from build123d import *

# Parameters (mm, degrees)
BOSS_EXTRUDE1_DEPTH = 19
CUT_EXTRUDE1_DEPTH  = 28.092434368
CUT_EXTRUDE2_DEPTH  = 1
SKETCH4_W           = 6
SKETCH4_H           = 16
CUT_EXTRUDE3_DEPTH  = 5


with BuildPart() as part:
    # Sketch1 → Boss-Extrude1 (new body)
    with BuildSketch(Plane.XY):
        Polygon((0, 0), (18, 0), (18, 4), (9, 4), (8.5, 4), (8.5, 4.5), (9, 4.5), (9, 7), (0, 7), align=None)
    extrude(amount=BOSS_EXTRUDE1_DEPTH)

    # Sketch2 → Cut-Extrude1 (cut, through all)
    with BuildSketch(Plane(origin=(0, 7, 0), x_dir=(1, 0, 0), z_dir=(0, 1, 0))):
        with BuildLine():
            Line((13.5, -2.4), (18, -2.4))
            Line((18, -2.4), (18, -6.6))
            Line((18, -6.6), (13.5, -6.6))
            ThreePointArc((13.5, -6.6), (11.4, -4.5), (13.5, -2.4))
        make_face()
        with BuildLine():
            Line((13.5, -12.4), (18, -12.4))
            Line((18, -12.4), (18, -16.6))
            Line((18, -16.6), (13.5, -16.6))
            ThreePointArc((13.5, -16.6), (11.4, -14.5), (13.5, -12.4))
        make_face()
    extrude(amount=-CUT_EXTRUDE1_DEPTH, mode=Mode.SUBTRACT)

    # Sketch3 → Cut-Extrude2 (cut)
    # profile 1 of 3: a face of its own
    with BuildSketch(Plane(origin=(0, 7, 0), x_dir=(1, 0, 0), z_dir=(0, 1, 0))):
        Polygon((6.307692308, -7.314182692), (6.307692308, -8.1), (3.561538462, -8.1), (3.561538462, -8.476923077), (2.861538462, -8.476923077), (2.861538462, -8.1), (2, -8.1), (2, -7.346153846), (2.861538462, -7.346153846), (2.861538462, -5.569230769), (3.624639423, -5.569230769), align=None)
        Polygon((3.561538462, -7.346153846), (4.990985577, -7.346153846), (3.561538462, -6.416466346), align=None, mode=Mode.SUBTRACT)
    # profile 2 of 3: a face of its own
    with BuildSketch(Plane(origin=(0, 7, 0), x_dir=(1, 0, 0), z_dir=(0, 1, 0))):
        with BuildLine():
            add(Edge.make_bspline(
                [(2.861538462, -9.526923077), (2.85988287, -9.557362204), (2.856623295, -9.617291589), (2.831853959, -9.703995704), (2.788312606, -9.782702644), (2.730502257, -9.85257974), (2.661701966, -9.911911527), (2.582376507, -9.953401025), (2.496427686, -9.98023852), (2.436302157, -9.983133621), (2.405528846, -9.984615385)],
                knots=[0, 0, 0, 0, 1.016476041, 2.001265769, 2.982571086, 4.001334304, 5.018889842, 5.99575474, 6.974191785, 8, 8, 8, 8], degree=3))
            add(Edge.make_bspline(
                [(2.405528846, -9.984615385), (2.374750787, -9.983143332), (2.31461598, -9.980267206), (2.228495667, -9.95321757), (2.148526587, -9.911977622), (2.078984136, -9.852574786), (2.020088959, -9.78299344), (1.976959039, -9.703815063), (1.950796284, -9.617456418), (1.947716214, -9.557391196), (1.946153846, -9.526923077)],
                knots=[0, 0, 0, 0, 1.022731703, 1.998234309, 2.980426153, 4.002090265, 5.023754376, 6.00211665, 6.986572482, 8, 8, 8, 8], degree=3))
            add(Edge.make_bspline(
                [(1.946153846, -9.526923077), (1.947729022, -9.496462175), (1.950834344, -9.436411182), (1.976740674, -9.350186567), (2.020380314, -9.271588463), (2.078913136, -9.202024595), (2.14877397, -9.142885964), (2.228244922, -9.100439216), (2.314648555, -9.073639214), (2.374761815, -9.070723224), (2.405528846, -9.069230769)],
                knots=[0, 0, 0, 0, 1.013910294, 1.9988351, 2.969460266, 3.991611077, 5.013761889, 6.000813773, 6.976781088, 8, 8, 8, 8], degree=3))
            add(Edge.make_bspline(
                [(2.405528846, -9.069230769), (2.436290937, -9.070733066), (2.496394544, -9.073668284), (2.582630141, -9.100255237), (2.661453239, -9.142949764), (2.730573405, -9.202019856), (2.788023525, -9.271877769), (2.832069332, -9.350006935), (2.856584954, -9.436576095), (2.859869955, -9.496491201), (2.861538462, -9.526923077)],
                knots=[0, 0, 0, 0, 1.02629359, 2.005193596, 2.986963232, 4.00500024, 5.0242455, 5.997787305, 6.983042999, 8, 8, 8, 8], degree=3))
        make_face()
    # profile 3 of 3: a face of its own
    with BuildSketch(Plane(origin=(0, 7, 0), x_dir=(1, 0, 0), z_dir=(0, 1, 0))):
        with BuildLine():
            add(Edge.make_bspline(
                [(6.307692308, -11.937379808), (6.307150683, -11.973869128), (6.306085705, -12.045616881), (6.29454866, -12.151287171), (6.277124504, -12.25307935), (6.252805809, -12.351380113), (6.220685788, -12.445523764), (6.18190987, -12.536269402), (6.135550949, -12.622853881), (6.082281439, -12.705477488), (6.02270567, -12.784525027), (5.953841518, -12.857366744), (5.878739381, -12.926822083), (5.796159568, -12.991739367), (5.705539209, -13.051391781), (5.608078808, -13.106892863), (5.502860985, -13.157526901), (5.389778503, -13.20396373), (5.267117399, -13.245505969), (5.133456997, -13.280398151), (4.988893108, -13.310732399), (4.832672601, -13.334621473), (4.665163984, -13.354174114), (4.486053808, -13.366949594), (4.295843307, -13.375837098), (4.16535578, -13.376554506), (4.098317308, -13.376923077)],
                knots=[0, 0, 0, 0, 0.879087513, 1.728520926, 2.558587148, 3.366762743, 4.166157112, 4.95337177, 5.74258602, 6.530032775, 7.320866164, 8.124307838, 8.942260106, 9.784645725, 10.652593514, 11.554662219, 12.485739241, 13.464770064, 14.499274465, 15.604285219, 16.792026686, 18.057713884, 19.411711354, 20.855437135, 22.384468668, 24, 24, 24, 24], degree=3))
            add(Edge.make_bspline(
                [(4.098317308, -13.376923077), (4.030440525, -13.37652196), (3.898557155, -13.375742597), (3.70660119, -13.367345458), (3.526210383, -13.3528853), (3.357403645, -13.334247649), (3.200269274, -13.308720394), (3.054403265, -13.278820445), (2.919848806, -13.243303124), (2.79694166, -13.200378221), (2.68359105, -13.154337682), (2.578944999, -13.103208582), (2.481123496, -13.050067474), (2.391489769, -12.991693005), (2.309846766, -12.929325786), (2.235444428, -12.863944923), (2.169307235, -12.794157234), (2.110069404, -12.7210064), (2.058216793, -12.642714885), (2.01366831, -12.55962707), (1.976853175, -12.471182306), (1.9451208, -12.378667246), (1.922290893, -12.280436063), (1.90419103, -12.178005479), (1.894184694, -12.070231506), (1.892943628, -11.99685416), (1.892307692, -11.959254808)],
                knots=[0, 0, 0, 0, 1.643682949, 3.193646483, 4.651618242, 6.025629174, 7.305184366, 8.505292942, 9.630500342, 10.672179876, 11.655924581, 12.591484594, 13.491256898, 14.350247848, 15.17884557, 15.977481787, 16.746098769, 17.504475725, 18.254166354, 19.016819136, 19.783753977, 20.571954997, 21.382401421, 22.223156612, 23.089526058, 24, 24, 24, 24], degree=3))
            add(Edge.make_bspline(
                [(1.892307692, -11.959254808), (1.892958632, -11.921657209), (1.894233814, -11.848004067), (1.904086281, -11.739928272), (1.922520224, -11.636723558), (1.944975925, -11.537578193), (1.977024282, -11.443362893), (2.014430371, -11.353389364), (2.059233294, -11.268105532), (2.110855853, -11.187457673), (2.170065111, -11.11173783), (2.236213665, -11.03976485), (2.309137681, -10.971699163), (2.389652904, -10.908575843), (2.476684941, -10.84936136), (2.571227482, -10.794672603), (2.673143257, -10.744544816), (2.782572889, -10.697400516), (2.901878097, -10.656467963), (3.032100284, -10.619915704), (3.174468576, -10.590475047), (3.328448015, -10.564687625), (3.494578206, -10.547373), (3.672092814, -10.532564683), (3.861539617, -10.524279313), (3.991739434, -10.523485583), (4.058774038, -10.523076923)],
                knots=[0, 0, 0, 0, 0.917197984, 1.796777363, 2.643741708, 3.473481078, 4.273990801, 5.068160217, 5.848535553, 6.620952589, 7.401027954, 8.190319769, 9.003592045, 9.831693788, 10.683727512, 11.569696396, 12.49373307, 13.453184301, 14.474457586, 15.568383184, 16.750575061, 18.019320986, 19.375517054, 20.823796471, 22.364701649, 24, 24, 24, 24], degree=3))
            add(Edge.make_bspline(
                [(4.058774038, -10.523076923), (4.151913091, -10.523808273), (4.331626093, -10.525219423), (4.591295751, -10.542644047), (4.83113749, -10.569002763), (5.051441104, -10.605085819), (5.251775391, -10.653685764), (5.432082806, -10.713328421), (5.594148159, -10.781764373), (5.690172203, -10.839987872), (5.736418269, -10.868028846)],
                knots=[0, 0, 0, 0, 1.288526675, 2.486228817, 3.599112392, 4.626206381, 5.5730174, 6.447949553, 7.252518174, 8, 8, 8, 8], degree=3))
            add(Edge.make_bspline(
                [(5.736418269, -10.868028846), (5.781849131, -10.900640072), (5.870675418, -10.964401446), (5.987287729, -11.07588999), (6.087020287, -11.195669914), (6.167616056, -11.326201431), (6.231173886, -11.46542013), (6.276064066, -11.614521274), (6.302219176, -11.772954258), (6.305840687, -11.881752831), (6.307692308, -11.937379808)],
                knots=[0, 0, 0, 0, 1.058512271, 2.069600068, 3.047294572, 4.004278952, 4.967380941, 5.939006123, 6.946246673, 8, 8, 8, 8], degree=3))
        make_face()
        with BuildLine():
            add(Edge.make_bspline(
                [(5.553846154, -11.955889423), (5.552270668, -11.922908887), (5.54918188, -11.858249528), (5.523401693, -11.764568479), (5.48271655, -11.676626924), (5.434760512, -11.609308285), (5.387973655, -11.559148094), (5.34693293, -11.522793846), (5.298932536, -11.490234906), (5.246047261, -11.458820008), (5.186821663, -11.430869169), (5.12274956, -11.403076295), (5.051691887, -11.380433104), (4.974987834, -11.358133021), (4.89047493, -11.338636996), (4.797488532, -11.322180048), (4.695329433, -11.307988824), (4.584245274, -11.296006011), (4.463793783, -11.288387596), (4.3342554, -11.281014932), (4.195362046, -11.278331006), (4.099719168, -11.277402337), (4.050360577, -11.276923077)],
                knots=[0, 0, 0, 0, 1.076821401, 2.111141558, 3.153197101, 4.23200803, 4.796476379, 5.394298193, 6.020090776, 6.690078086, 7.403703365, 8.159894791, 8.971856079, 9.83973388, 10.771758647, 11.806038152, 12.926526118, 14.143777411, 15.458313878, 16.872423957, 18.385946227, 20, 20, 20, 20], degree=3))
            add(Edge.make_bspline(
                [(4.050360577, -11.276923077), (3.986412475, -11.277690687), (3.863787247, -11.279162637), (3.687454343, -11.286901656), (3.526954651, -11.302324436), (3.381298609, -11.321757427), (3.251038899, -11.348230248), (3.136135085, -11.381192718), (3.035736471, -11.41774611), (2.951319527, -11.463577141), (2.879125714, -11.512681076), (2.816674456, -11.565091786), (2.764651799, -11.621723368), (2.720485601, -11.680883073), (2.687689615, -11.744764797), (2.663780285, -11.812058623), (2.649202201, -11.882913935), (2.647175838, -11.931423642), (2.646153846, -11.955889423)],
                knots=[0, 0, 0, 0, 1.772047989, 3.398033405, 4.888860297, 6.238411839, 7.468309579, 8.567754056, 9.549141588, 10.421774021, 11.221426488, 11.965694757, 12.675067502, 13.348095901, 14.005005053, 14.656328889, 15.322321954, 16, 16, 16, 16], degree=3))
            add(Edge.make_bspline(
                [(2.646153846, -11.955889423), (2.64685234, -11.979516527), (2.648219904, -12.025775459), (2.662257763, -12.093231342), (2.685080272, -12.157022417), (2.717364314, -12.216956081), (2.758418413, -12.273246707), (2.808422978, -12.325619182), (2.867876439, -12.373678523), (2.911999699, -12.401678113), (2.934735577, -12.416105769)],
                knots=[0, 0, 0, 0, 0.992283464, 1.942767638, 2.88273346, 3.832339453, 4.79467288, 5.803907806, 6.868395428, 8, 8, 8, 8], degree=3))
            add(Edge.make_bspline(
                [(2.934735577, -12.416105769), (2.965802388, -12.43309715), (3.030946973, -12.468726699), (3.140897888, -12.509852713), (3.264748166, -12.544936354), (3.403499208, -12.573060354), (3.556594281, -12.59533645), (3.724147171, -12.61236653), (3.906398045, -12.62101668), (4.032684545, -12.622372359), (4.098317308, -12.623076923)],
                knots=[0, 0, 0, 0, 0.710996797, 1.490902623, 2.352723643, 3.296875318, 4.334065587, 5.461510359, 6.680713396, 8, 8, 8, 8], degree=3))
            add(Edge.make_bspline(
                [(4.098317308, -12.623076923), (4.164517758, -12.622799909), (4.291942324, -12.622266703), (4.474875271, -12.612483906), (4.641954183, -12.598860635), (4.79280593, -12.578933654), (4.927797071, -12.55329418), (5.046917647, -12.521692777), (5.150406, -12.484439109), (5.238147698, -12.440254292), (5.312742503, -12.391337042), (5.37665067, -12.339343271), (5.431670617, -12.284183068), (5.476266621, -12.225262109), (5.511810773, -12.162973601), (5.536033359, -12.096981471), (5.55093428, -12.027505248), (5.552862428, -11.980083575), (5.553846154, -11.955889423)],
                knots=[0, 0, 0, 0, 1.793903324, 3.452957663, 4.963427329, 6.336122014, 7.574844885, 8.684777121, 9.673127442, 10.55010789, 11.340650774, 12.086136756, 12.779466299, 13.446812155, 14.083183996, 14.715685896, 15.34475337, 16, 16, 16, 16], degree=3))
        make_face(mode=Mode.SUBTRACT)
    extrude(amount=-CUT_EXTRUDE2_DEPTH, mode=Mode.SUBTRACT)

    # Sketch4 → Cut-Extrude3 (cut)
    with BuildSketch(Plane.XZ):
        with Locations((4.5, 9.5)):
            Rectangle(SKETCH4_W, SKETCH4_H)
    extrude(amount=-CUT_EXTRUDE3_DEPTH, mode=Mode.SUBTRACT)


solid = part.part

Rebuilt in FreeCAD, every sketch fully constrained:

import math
import FreeCAD as App
import Part
import Sketcher

V = App.Vector


def add_polygon(sketch, points):
    """Adds a closed chain of lines whose ends are joined by coincident constraints."""
    first, n = sketch.GeometryCount, len(points)
    for a, b in zip(points, points[1:] + points[:1]):
        sketch.addGeometry(Part.LineSegment(App.Vector(*a, 0), App.Vector(*b, 0)), False)
    for i in range(n):
        sketch.addConstraint(Sketcher.Constraint("Coincident", first + i, 2, first + (i + 1) % n, 1))

doc = App.newDocument("Part")
body = doc.addObject("PartDesign::Body", "Body")

sketch1 = body.newObject("Sketcher::SketchObject", "Sketch")
sketch1.AttachmentSupport = (doc.getObject("XY_Plane"), [""])
sketch1.MapMode = "FlatFace"
add_polygon(sketch1, [(0, 0), (18, 0), (18, 4), (8.5, 4), (8.5, 4.5), (9, 4.5), (9, 7), (0, 7)])
sketch1.addConstraint(Sketcher.Constraint("Horizontal", 0))
sketch1.addConstraint(Sketcher.Constraint("Vertical", 1))
sketch1.addConstraint(Sketcher.Constraint("Horizontal", 2))
sketch1.addConstraint(Sketcher.Constraint("Vertical", 3))
sketch1.addConstraint(Sketcher.Constraint("Horizontal", 4))
sketch1.addConstraint(Sketcher.Constraint("Vertical", 5))
sketch1.addConstraint(Sketcher.Constraint("Horizontal", 6))
sketch1.addConstraint(Sketcher.Constraint("Vertical", 7))
sketch1.addConstraint(Sketcher.Constraint("Coincident", 7, 2, -1, 1))
sketch1.addConstraint(Sketcher.Constraint("Equal", 4, 3))
sketch1.addConstraint(Sketcher.Constraint("DistanceX", 0, 1, 0, 2, 18.0))
sketch1.addConstraint(Sketcher.Constraint("DistanceX", 6, 2, 6, 1, 9.0))
sketch1.addConstraint(Sketcher.Constraint("DistanceY", 1, 1, 1, 2, 4.0))
sketch1.addConstraint(Sketcher.Constraint("DistanceY", 7, 2, 7, 1, 7.0))
sketch1.addConstraint(Sketcher.Constraint("DistanceX", 2, 2, 2, 1, 9.5))
pad1 = body.newObject("PartDesign::Pad", "Pad")
pad1.Profile = sketch1
pad1.Length = 19

sketch2 = body.newObject("Sketcher::SketchObject", "Sketch001")
sketch2.AttachmentSupport = (doc.getObject("XZ_Plane"), [""])
sketch2.MapMode = "FlatFace"
sketch2.AttachmentOffset = App.Placement(V(0, 0, -7), App.Rotation())
sketch2.addGeometry(Part.LineSegment(V(18, 2.4, 0), V(13.5, 2.4, 0)), False)
sketch2.addGeometry(Part.ArcOfCircle(Part.Circle(V(13.5, 4.5, 0), V(0, 0, 1), 2.1), math.radians(90), math.radians(270)), False)
sketch2.addGeometry(Part.LineSegment(V(13.5, 6.6, 0), V(18, 6.6, 0)), False)
sketch2.addGeometry(Part.LineSegment(V(18, 6.6, 0), V(18, 2.4, 0)), False)
sketch2.addGeometry(Part.LineSegment(V(18, 12.4, 0), V(13.5, 12.4, 0)), False)
sketch2.addGeometry(Part.ArcOfCircle(Part.Circle(V(13.5, 14.5, 0), V(0, 0, 1), 2.1), math.radians(90), math.radians(270)), False)
sketch2.addGeometry(Part.LineSegment(V(13.5, 16.6, 0), V(18, 16.6, 0)), False)
sketch2.addGeometry(Part.LineSegment(V(18, 16.6, 0), V(18, 12.4, 0)), False)
sketch2.addConstraint(Sketcher.Constraint("Tangent", 0, 2, 1, 2))
sketch2.addConstraint(Sketcher.Constraint("Tangent", 1, 1, 2, 1))
sketch2.addConstraint(Sketcher.Constraint("Coincident", 2, 2, 3, 1))
sketch2.addConstraint(Sketcher.Constraint("Coincident", 3, 2, 0, 1))
sketch2.addConstraint(Sketcher.Constraint("Tangent", 4, 2, 5, 2))
sketch2.addConstraint(Sketcher.Constraint("Tangent", 5, 1, 6, 1))
sketch2.addConstraint(Sketcher.Constraint("Coincident", 6, 2, 7, 1))
sketch2.addConstraint(Sketcher.Constraint("Coincident", 7, 2, 4, 1))
sketch2.addConstraint(Sketcher.Constraint("Horizontal", 0))
sketch2.addConstraint(Sketcher.Constraint("Horizontal", 2))
sketch2.addConstraint(Sketcher.Constraint("Vertical", 3))
sketch2.addConstraint(Sketcher.Constraint("Horizontal", 4))
sketch2.addConstraint(Sketcher.Constraint("Horizontal", 6))
sketch2.addConstraint(Sketcher.Constraint("Vertical", 7))
sketch2.addConstraint(Sketcher.Constraint("Equal", 1, 5))
sketch2.addConstraint(Sketcher.Constraint("Vertical", 1, 3, 5, 3))
sketch2.addConstraint(Sketcher.Constraint("Vertical", 3, 2, 6, 2))
sketch2.addConstraint(Sketcher.Constraint("Radius", 1, 2.1))
sketch2.addConstraint(Sketcher.Constraint("DistanceX", 0, 2, 0, 1, 4.5))
sketch2.addConstraint(Sketcher.Constraint("DistanceX", -1, 1, 2, 2, 18.0))
sketch2.addConstraint(Sketcher.Constraint("DistanceY", 1, 3, 5, 3, 10.0))
sketch2.addConstraint(Sketcher.Constraint("DistanceY", -1, 1, 1, 3, 4.5))
pocket1 = body.newObject("PartDesign::Pocket", "Pocket")
pocket1.Profile = sketch2
pocket1.Type = "ThroughAll"
pocket1.Reversed = True

sketch3 = body.newObject("Sketcher::SketchObject", "Sketch002")
sketch3.AttachmentSupport = (doc.getObject("XZ_Plane"), [""])
sketch3.MapMode = "FlatFace"
sketch3.AttachmentOffset = App.Placement(V(0, 0, -7), App.Rotation())
add_polygon(sketch3, [(6.307692, 8.1), (6.307692, 7.314183), (3.624639, 5.569231), (2.861538, 5.569231), (2.861538, 7.346154), (2, 7.346154), (2, 8.1), (2.861538, 8.1), (2.861538, 8.476923), (3.561538, 8.476923), (3.561538, 8.1)])
add_polygon(sketch3, [(3.561538, 7.346154), (3.561538, 6.416466), (4.990986, 7.346154)])
sketch3.addGeometry(Part.BSplineCurve([V(2.861538, 9.526923, 0), V(2.859883, 9.557362, 0), V(2.856623, 9.617292, 0), V(2.831854, 9.703996, 0), V(2.788313, 9.782703, 0), V(2.730502, 9.85258, 0), V(2.661702, 9.911912, 0), V(2.582377, 9.953401, 0), V(2.496428, 9.980239, 0), V(2.436302, 9.983134, 0), V(2.405529, 9.984615, 0)], [4, 1, 1, 1, 1, 1, 1, 1, 4], [0, 1.016476041, 2.001265769, 2.982571086, 4.001334304, 5.018889842, 5.99575474, 6.974191785, 8], False, 3, [1, 1, 1, 1, 1, 1, 1, 1, 1, 1, 1], False), False)
sketch3.addGeometry(Part.BSplineCurve([V(2.405529, 9.069231, 0), V(2.436291, 9.070733, 0), V(2.496395, 9.073668, 0), V(2.58263, 9.100255, 0), V(2.661453, 9.14295, 0), V(2.730573, 9.20202, 0), V(2.788024, 9.271878, 0), V(2.832069, 9.350007, 0), V(2.856585, 9.436576, 0), V(2.85987, 9.496491, 0), V(2.861538, 9.526923, 0)], [4, 1, 1, 1, 1, 1, 1, 1, 4], [0, 1.02629359, 2.005193596, 2.986963232, 4.00500024, 5.0242455, 5.997787305, 6.983042999, 8], False, 3, [1, 1, 1, 1, 1, 1, 1, 1, 1, 1, 1], False), False)
sketch3.addGeometry(Part.BSplineCurve([V(1.946154, 9.526923, 0), V(1.947729, 9.496462, 0), V(1.950834, 9.436411, 0), V(1.976741, 9.350187, 0), V(2.02038, 9.271588, 0), V(2.078913, 9.202025, 0), V(2.148774, 9.142886, 0), V(2.228245, 9.100439, 0), V(2.314649, 9.073639, 0), V(2.374762, 9.070723, 0), V(2.405529, 9.069231, 0)], [4, 1, 1, 1, 1, 1, 1, 1, 4], [0, 1.013910294, 1.9988351, 2.969460266, 3.991611077, 5.013761889, 6.000813773, 6.976781088, 8], False, 3, [1, 1, 1, 1, 1, 1, 1, 1, 1, 1, 1], False), False)
sketch3.addGeometry(Part.BSplineCurve([V(2.405529, 9.984615, 0), V(2.374751, 9.983143, 0), V(2.314616, 9.980267, 0), V(2.228496, 9.953218, 0), V(2.148527, 9.911978, 0), V(2.078984, 9.852575, 0), V(2.020089, 9.782993, 0), V(1.976959, 9.703815, 0), V(1.950796, 9.617456, 0), V(1.947716, 9.557391, 0), V(1.946154, 9.526923, 0)], [4, 1, 1, 1, 1, 1, 1, 1, 4], [0, 1.022731703, 1.998234309, 2.980426153, 4.002090265, 5.023754376, 6.00211665, 6.986572482, 8], False, 3, [1, 1, 1, 1, 1, 1, 1, 1, 1, 1, 1], False), False)
sketch3.addGeometry(Part.BSplineCurve([V(6.307692, 11.93738, 0), V(6.307151, 11.973869, 0), V(6.306086, 12.045617, 0), V(6.294549, 12.151287, 0), V(6.277125, 12.253079, 0), V(6.252806, 12.35138, 0), V(6.220686, 12.445524, 0), V(6.18191, 12.536269, 0), V(6.135551, 12.622854, 0), V(6.082281, 12.705477, 0), V(6.022706, 12.784525, 0), V(5.953842, 12.857367, 0), V(5.878739, 12.926822, 0), V(5.79616, 12.991739, 0), V(5.705539, 13.051392, 0), V(5.608079, 13.106893, 0), V(5.502861, 13.157527, 0), V(5.389779, 13.203964, 0), V(5.267117, 13.245506, 0), V(5.133457, 13.280398, 0), V(4.988893, 13.310732, 0), V(4.832673, 13.334621, 0), V(4.665164, 13.354174, 0), V(4.486054, 13.36695, 0), V(4.295843, 13.375837, 0), V(4.165356, 13.376555, 0), V(4.098317, 13.376923, 0)], [4, 1, 1, 1, 1, 1, 1, 1, 1, 1, 1, 1, 1, 1, 1, 1, 1, 1, 1, 1, 1, 1, 1, 1, 4], [0, 0.879087513, 1.728520926, 2.558587148, 3.366762743, 4.166157112, 4.95337177, 5.74258602, 6.530032775, 7.320866164, 8.124307838, 8.942260106, 9.784645725, 10.652593514, 11.554662219, 12.485739241, 13.464770064, 14.499274465, 15.604285219, 16.792026686, 18.057713884, 19.411711354, 20.855437135, 22.384468668, 24], False, 3, [1, 1, 1, 1, 1, 1, 1, 1, 1, 1, 1, 1, 1, 1, 1, 1, 1, 1, 1, 1, 1, 1, 1, 1, 1, 1, 1], False), False)
sketch3.addGeometry(Part.BSplineCurve([V(5.736418, 10.868029, 0), V(5.781849, 10.90064, 0), V(5.870675, 10.964401, 0), V(5.987288, 11.07589, 0), V(6.08702, 11.19567, 0), V(6.167616, 11.326201, 0), V(6.231174, 11.46542, 0), V(6.276064, 11.614521, 0), V(6.302219, 11.772954, 0), V(6.305841, 11.881753, 0), V(6.307692, 11.93738, 0)], [4, 1, 1, 1, 1, 1, 1, 1, 4], [0, 1.058512271, 2.069600068, 3.047294572, 4.004278952, 4.967380941, 5.939006123, 6.946246673, 8], False, 3, [1, 1, 1, 1, 1, 1, 1, 1, 1, 1, 1], False), False)
sketch3.addGeometry(Part.BSplineCurve([V(4.058774, 10.523077, 0), V(4.151913, 10.523808, 0), V(4.331626, 10.525219, 0), V(4.591296, 10.542644, 0), V(4.831137, 10.569003, 0), V(5.051441, 10.605086, 0), V(5.251775, 10.653686, 0), V(5.432083, 10.713328, 0), V(5.594148, 10.781764, 0), V(5.690172, 10.839988, 0), V(5.736418, 10.868029, 0)], [4, 1, 1, 1, 1, 1, 1, 1, 4], [0, 1.288526675, 2.486228817, 3.599112392, 4.626206381, 5.5730174, 6.447949553, 7.252518174, 8], False, 3, [1, 1, 1, 1, 1, 1, 1, 1, 1, 1, 1], False), False)
sketch3.addGeometry(Part.BSplineCurve([V(1.892308, 11.959255, 0), V(1.892959, 11.921657, 0), V(1.894234, 11.848004, 0), V(1.904086, 11.739928, 0), V(1.92252, 11.636724, 0), V(1.944976, 11.537578, 0), V(1.977024, 11.443363, 0), V(2.01443, 11.353389, 0), V(2.059233, 11.268106, 0), V(2.110856, 11.187458, 0), V(2.170065, 11.111738, 0), V(2.236214, 11.039765, 0), V(2.309138, 10.971699, 0), V(2.389653, 10.908576, 0), V(2.476685, 10.849361, 0), V(2.571227, 10.794673, 0), V(2.673143, 10.744545, 0), V(2.782573, 10.697401, 0), V(2.901878, 10.656468, 0), V(3.0321, 10.619916, 0), V(3.174469, 10.590475, 0), V(3.328448, 10.564688, 0), V(3.494578, 10.547373, 0), V(3.672093, 10.532565, 0), V(3.86154, 10.524279, 0), V(3.991739, 10.523486, 0), V(4.058774, 10.523077, 0)], [4, 1, 1, 1, 1, 1, 1, 1, 1, 1, 1, 1, 1, 1, 1, 1, 1, 1, 1, 1, 1, 1, 1, 1, 4], [0, 0.917197984, 1.796777363, 2.643741708, 3.473481078, 4.273990801, 5.068160217, 5.848535553, 6.620952589, 7.401027954, 8.190319769, 9.003592045, 9.831693788, 10.683727512, 11.569696396, 12.49373307, 13.453184301, 14.474457586, 15.568383184, 16.750575061, 18.019320986, 19.375517054, 20.823796471, 22.364701649, 24], False, 3, [1, 1, 1, 1, 1, 1, 1, 1, 1, 1, 1, 1, 1, 1, 1, 1, 1, 1, 1, 1, 1, 1, 1, 1, 1, 1, 1], False), False)
sketch3.addGeometry(Part.BSplineCurve([V(4.098317, 13.376923, 0), V(4.030441, 13.376522, 0), V(3.898557, 13.375743, 0), V(3.706601, 13.367345, 0), V(3.52621, 13.352885, 0), V(3.357404, 13.334248, 0), V(3.200269, 13.30872, 0), V(3.054403, 13.27882, 0), V(2.919849, 13.243303, 0), V(2.796942, 13.200378, 0), V(2.683591, 13.154338, 0), V(2.578945, 13.103209, 0), V(2.481123, 13.050067, 0), V(2.39149, 12.991693, 0), V(2.309847, 12.929326, 0), V(2.235444, 12.863945, 0), V(2.169307, 12.794157, 0), V(2.110069, 12.721006, 0), V(2.058217, 12.642715, 0), V(2.013668, 12.559627, 0), V(1.976853, 12.471182, 0), V(1.945121, 12.378667, 0), V(1.922291, 12.280436, 0), V(1.904191, 12.178005, 0), V(1.894185, 12.070232, 0), V(1.892944, 11.996854, 0), V(1.892308, 11.959255, 0)], [4, 1, 1, 1, 1, 1, 1, 1, 1, 1, 1, 1, 1, 1, 1, 1, 1, 1, 1, 1, 1, 1, 1, 1, 4], [0, 1.643682949, 3.193646483, 4.651618242, 6.025629174, 7.305184366, 8.505292942, 9.630500342, 10.672179876, 11.655924581, 12.591484594, 13.491256898, 14.350247848, 15.17884557, 15.977481787, 16.746098769, 17.504475725, 18.254166354, 19.016819136, 19.783753977, 20.571954997, 21.382401421, 22.223156612, 23.089526058, 24], False, 3, [1, 1, 1, 1, 1, 1, 1, 1, 1, 1, 1, 1, 1, 1, 1, 1, 1, 1, 1, 1, 1, 1, 1, 1, 1, 1, 1], False), False)
sketch3.addGeometry(Part.BSplineCurve([V(4.098317, 12.623077, 0), V(4.164518, 12.6228, 0), V(4.291942, 12.622267, 0), V(4.474875, 12.612484, 0), V(4.641954, 12.598861, 0), V(4.792806, 12.578934, 0), V(4.927797, 12.553294, 0), V(5.046918, 12.521693, 0), V(5.150406, 12.484439, 0), V(5.238148, 12.440254, 0), V(5.312743, 12.391337, 0), V(5.376651, 12.339343, 0), V(5.431671, 12.284183, 0), V(5.476267, 12.225262, 0), V(5.511811, 12.162974, 0), V(5.536033, 12.096981, 0), V(5.550934, 12.027505, 0), V(5.552862, 11.980084, 0), V(5.553846, 11.955889, 0)], [4, 1, 1, 1, 1, 1, 1, 1, 1, 1, 1, 1, 1, 1, 1, 1, 4], [0, 1.793903324, 3.452957663, 4.963427329, 6.336122014, 7.574844885, 8.684777121, 9.673127442, 10.55010789, 11.340650774, 12.086136756, 12.779466299, 13.446812155, 14.083183996, 14.715685896, 15.34475337, 16], False, 3, [1, 1, 1, 1, 1, 1, 1, 1, 1, 1, 1, 1, 1, 1, 1, 1, 1, 1, 1], False), False)
sketch3.addGeometry(Part.BSplineCurve([V(2.934736, 12.416106, 0), V(2.965802, 12.433097, 0), V(3.030947, 12.468727, 0), V(3.140898, 12.509853, 0), V(3.264748, 12.544936, 0), V(3.403499, 12.57306, 0), V(3.556594, 12.595336, 0), V(3.724147, 12.612367, 0), V(3.906398, 12.621017, 0), V(4.032685, 12.622372, 0), V(4.098317, 12.623077, 0)], [4, 1, 1, 1, 1, 1, 1, 1, 4], [0, 0.710996797, 1.490902623, 2.352723643, 3.296875318, 4.334065587, 5.461510359, 6.680713396, 8], False, 3, [1, 1, 1, 1, 1, 1, 1, 1, 1, 1, 1], False), False)
sketch3.addGeometry(Part.BSplineCurve([V(2.646154, 11.955889, 0), V(2.646852, 11.979517, 0), V(2.64822, 12.025775, 0), V(2.662258, 12.093231, 0), V(2.68508, 12.157022, 0), V(2.717364, 12.216956, 0), V(2.758418, 12.273247, 0), V(2.808423, 12.325619, 0), V(2.867876, 12.373679, 0), V(2.912, 12.401678, 0), V(2.934736, 12.416106, 0)], [4, 1, 1, 1, 1, 1, 1, 1, 4], [0, 0.992283464, 1.942767638, 2.88273346, 3.832339453, 4.79467288, 5.803907806, 6.868395428, 8], False, 3, [1, 1, 1, 1, 1, 1, 1, 1, 1, 1, 1], False), False)
sketch3.addGeometry(Part.BSplineCurve([V(4.050361, 11.276923, 0), V(3.986412, 11.277691, 0), V(3.863787, 11.279163, 0), V(3.687454, 11.286902, 0), V(3.526955, 11.302324, 0), V(3.381299, 11.321757, 0), V(3.251039, 11.34823, 0), V(3.136135, 11.381193, 0), V(3.035736, 11.417746, 0), V(2.95132, 11.463577, 0), V(2.879126, 11.512681, 0), V(2.816674, 11.565092, 0), V(2.764652, 11.621723, 0), V(2.720486, 11.680883, 0), V(2.68769, 11.744765, 0), V(2.66378, 11.812059, 0), V(2.649202, 11.882914, 0), V(2.647176, 11.931424, 0), V(2.646154, 11.955889, 0)], [4, 1, 1, 1, 1, 1, 1, 1, 1, 1, 1, 1, 1, 1, 1, 1, 4], [0, 1.772047989, 3.398033405, 4.888860297, 6.238411839, 7.468309579, 8.567754056, 9.549141588, 10.421774021, 11.221426488, 11.965694757, 12.675067502, 13.348095901, 14.005005053, 14.656328889, 15.322321954, 16], False, 3, [1, 1, 1, 1, 1, 1, 1, 1, 1, 1, 1, 1, 1, 1, 1, 1, 1, 1, 1], False), False)
sketch3.addGeometry(Part.BSplineCurve([V(5.553846, 11.955889, 0), V(5.552271, 11.922909, 0), V(5.549182, 11.85825, 0), V(5.523402, 11.764568, 0), V(5.482717, 11.676627, 0), V(5.434761, 11.609308, 0), V(5.387974, 11.559148, 0), V(5.346933, 11.522794, 0), V(5.298933, 11.490235, 0), V(5.246047, 11.45882, 0), V(5.186822, 11.430869, 0), V(5.12275, 11.403076, 0), V(5.051692, 11.380433, 0), V(4.974988, 11.358133, 0), V(4.890475, 11.338637, 0), V(4.797489, 11.32218, 0), V(4.695329, 11.307989, 0), V(4.584245, 11.296006, 0), V(4.463794, 11.288388, 0), V(4.334255, 11.281015, 0), V(4.195362, 11.278331, 0), V(4.099719, 11.277402, 0), V(4.050361, 11.276923, 0)], [4, 1, 1, 1, 1, 1, 1, 1, 1, 1, 1, 1, 1, 1, 1, 1, 1, 1, 1, 1, 4], [0, 1.076821401, 2.111141558, 3.153197101, 4.23200803, 4.796476379, 5.394298193, 6.020090776, 6.690078086, 7.403703365, 8.159894791, 8.971856079, 9.83973388, 10.771758647, 11.806038152, 12.926526118, 14.143777411, 15.458313878, 16.872423957, 18.385946227, 20], False, 3, [1, 1, 1, 1, 1, 1, 1, 1, 1, 1, 1, 1, 1, 1, 1, 1, 1, 1, 1, 1, 1, 1, 1], False), False)
sketch3.addConstraint(Sketcher.Constraint("Block", 14))
sketch3.addConstraint(Sketcher.Constraint("Block", 15))
sketch3.addConstraint(Sketcher.Constraint("Block", 16))
sketch3.addConstraint(Sketcher.Constraint("Block", 17))
sketch3.addConstraint(Sketcher.Constraint("Block", 18))
sketch3.addConstraint(Sketcher.Constraint("Block", 19))
sketch3.addConstraint(Sketcher.Constraint("Block", 20))
sketch3.addConstraint(Sketcher.Constraint("Block", 21))
sketch3.addConstraint(Sketcher.Constraint("Block", 22))
sketch3.addConstraint(Sketcher.Constraint("Block", 23))
sketch3.addConstraint(Sketcher.Constraint("Block", 24))
sketch3.addConstraint(Sketcher.Constraint("Block", 25))
sketch3.addConstraint(Sketcher.Constraint("Block", 26))
sketch3.addConstraint(Sketcher.Constraint("Block", 27))
sketch3.addConstraint(Sketcher.Constraint("Vertical", 0))
sketch3.addConstraint(Sketcher.Constraint("Horizontal", 2))
sketch3.addConstraint(Sketcher.Constraint("Vertical", 3))
sketch3.addConstraint(Sketcher.Constraint("Horizontal", 4))
sketch3.addConstraint(Sketcher.Constraint("Vertical", 5))
sketch3.addConstraint(Sketcher.Constraint("Horizontal", 6))
sketch3.addConstraint(Sketcher.Constraint("Vertical", 7))
sketch3.addConstraint(Sketcher.Constraint("Horizontal", 8))
sketch3.addConstraint(Sketcher.Constraint("Vertical", 9))
sketch3.addConstraint(Sketcher.Constraint("Horizontal", 10))
sketch3.addConstraint(Sketcher.Constraint("Vertical", 11))
sketch3.addConstraint(Sketcher.Constraint("Horizontal", 13))
sketch3.addConstraint(Sketcher.Constraint("Horizontal", 6, 2, 9, 2))
sketch3.addConstraint(Sketcher.Constraint("Horizontal", 4, 2, 12, 2))
sketch3.addConstraint(Sketcher.Constraint("Vertical", 3, 2, 6, 2))
sketch3.addConstraint(Sketcher.Constraint("Vertical", 9, 2, 11, 2))
sketch3.addConstraint(Sketcher.Constraint("DistanceX", 8, 1, 8, 2, 0.7))
sketch3.addConstraint(Sketcher.Constraint("DistanceX", -1, 1, 4, 2, 2.0))
sketch3.addConstraint(Sketcher.Constraint("DistanceY", -1, 1, 5, 2, 8.1))
sketch3.addConstraint(Sketcher.Constraint("DistanceX", 2, 2, 2, 1, 0.763101))
sketch3.addConstraint(Sketcher.Constraint("DistanceX", 4, 2, 4, 1, 0.861538))
sketch3.addConstraint(Sketcher.Constraint("Distance", 12, 1.70518))
sketch3.addConstraint(Sketcher.Constraint("DistanceX", 10, 1, 10, 2, 2.746154))
sketch3.addConstraint(Sketcher.Constraint("DistanceX", 13, 2, 13, 1, 1.429447))
sketch3.addConstraint(Sketcher.Constraint("DistanceY", 0, 2, 0, 1, 0.785817))
sketch3.addConstraint(Sketcher.Constraint("DistanceY", 3, 1, 3, 2, 1.776923))
sketch3.addConstraint(Sketcher.Constraint("DistanceY", 5, 1, 5, 2, 0.753846))
sketch3.addConstraint(Sketcher.Constraint("DistanceY", 7, 1, 7, 2, 0.376923))
pocket2 = body.newObject("PartDesign::Pocket", "Pocket001")
pocket2.Profile = sketch3
pocket2.Length = 1
pocket2.Reversed = True

sketch4 = body.newObject("Sketcher::SketchObject", "Sketch003")
sketch4.AttachmentSupport = (doc.getObject("XZ_Plane"), [""])
sketch4.MapMode = "FlatFace"
add_polygon(sketch4, [(2, 18), (2, 2), (8, 2), (8, 18)])
sketch4.addConstraint(Sketcher.Constraint("Vertical", 0))
sketch4.addConstraint(Sketcher.Constraint("Horizontal", 1))
sketch4.addConstraint(Sketcher.Constraint("Vertical", 2))
sketch4.addConstraint(Sketcher.Constraint("Horizontal", 3))
sketch4.addConstraint(Sketcher.Constraint("DistanceX", 1, 1, 1, 2, 6.0))
sketch4.addConstraint(Sketcher.Constraint("DistanceY", 0, 2, 0, 1, 16.0))
sketch4.addConstraint(Sketcher.Constraint("DistanceX", -1, 1, 0, 2, 1.5))
sketch4.addConstraint(Sketcher.Constraint("DistanceY", -1, 1, 0, 2, 1.5))
pocket3 = body.newObject("PartDesign::Pocket", "Pocket002")
pocket3.Profile = sketch4
pocket3.Length = 5

doc.recompute()
